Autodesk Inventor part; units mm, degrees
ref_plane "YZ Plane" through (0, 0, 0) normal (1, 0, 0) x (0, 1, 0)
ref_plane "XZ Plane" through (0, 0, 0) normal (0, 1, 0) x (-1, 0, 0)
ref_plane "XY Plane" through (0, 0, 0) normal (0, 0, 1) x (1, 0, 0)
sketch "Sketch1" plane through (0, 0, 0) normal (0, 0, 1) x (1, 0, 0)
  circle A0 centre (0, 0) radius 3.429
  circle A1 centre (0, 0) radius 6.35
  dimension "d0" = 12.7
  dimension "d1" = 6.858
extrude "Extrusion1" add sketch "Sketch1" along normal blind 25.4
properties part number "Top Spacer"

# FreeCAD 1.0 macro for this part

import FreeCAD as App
import Part
import Sketcher

V = App.Vector
Q = App.Units.Quantity

doc = App.newDocument("Part")
body = doc.addObject("PartDesign::Body", "Body")

# Sketch on XY plane
sketch1 = body.newObject("Sketcher::SketchObject", "Sketch")
sketch1.AttachmentSupport = (doc.getObject("XY_Plane"), [""])
sketch1.MapMode = "FlatFace"
sketch1.addGeometry([
    Part.Circle(V(0, 0, 0), V(0, 0, 1), 6.35),
    Part.Circle(V(0, 0, 0), V(0, 0, 1), 3.429),
], False)
sketch1.addConstraint([
    Sketcher.Constraint("Coincident", 0, 3, -1, 1),
    Sketcher.Constraint("Coincident", 1, 3, -1, 1),
    Sketcher.Constraint("Diameter", 0, Q("0.5 in")),
    Sketcher.Constraint("Diameter", 1, Q("0.27 in")),
])
pad1 = body.newObject("PartDesign::Pad", "Pad")
pad1.Profile = sketch1
pad1.Length = Q("1 in")

doc.recompute()
